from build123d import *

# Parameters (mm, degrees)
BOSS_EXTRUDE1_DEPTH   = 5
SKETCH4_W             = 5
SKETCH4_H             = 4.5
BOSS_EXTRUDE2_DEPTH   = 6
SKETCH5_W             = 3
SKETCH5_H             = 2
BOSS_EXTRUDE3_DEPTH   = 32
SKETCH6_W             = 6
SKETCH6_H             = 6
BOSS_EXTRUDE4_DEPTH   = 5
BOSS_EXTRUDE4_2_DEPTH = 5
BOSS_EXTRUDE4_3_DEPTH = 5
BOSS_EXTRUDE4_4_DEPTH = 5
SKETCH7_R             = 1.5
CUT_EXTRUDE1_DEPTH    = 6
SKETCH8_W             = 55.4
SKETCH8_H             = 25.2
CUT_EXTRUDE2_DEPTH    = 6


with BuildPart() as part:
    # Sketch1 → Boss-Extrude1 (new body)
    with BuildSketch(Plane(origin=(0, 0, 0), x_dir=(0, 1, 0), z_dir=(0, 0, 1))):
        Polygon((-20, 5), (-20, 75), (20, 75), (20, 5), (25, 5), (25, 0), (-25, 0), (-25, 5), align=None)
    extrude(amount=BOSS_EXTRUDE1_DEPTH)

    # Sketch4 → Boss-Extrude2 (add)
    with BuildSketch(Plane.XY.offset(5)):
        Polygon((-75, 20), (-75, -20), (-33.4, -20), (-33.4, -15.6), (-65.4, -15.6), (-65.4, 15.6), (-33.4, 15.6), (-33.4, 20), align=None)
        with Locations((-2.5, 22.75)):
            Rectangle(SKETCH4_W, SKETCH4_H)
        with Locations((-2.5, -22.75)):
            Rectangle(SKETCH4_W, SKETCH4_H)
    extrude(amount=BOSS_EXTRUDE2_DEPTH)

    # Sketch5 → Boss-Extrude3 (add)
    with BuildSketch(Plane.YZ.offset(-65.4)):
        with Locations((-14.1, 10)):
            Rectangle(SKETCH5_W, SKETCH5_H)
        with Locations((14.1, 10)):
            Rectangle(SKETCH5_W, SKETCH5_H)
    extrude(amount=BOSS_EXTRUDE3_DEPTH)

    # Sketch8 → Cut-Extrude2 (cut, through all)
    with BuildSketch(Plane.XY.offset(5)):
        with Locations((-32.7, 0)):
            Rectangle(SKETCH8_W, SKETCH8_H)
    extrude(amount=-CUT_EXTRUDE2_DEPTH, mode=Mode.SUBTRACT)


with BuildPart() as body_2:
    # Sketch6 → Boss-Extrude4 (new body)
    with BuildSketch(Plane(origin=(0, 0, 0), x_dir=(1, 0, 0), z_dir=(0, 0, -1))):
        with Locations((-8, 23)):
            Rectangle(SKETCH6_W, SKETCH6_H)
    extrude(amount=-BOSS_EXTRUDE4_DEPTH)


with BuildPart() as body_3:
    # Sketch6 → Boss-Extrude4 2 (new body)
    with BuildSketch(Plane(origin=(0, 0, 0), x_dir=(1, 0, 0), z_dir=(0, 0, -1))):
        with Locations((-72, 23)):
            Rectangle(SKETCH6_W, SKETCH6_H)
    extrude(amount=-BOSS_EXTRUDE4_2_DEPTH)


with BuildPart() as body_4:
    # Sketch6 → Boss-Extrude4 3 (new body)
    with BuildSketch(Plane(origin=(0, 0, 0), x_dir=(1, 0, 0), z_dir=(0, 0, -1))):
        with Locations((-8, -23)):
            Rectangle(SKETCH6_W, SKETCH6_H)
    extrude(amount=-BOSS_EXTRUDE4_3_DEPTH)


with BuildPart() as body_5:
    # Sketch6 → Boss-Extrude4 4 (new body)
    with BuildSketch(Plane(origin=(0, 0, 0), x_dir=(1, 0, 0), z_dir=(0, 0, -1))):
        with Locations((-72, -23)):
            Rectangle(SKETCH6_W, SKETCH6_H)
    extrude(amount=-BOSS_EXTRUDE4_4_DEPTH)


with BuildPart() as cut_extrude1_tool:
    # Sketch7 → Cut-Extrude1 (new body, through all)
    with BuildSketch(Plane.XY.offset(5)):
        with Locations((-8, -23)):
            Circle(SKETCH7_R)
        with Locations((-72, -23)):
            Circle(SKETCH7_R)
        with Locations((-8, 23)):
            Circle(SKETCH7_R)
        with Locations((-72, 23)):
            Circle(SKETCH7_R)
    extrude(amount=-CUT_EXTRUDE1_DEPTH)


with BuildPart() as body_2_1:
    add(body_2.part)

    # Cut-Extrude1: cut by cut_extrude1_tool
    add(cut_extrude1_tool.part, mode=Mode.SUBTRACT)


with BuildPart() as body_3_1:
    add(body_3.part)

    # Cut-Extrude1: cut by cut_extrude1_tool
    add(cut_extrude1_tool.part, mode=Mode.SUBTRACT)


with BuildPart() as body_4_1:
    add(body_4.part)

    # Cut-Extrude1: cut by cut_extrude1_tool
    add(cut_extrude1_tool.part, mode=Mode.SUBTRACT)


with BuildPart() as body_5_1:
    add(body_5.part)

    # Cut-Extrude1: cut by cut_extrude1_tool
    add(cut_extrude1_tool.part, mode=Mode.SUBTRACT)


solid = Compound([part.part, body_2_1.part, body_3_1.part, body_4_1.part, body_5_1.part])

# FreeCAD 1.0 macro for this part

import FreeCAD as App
import Part
import Sketcher

doc = App.newDocument("Part")
body = doc.addObject("PartDesign::Body", "Body")

sketch1 = body.newObject("Sketcher::SketchObject", "Sketch")
sketch1.AttachmentSupport = (doc.getObject("XY_Plane"), [""])
sketch1.MapMode = "FlatFace"
sketch1.addGeometry(Part.LineSegment(App.Vector(-75, -20, 0), App.Vector(-5, -20, 0)), False)
sketch1.addGeometry(Part.LineSegment(App.Vector(-5, -20, 0), App.Vector(-5, -25, 0)), False)
sketch1.addGeometry(Part.LineSegment(App.Vector(-5, -25, 0), App.Vector(0, -25, 0)), False)
sketch1.addGeometry(Part.LineSegment(App.Vector(0, -25, 0), App.Vector(0, 25, 0)), False)
sketch1.addGeometry(Part.LineSegment(App.Vector(0, 25, 0), App.Vector(-5, 25, 0)), False)
sketch1.addGeometry(Part.LineSegment(App.Vector(-5, 25, 0), App.Vector(-5, 20, 0)), False)
sketch1.addGeometry(Part.LineSegment(App.Vector(-5, 20, 0), App.Vector(-75, 20, 0)), False)
sketch1.addGeometry(Part.LineSegment(App.Vector(-75, 20, 0), App.Vector(-75, -20, 0)), False)
sketch1.addConstraint(Sketcher.Constraint("Coincident", 0, 2, 1, 1))
sketch1.addConstraint(Sketcher.Constraint("Coincident", 1, 2, 2, 1))
sketch1.addConstraint(Sketcher.Constraint("Coincident", 2, 2, 3, 1))
sketch1.addConstraint(Sketcher.Constraint("Coincident", 3, 2, 4, 1))
sketch1.addConstraint(Sketcher.Constraint("Coincident", 4, 2, 5, 1))
sketch1.addConstraint(Sketcher.Constraint("Coincident", 5, 2, 6, 1))
sketch1.addConstraint(Sketcher.Constraint("Coincident", 6, 2, 7, 1))
sketch1.addConstraint(Sketcher.Constraint("Coincident", 7, 2, 0, 1))
sketch1.addConstraint(Sketcher.Constraint("Horizontal", 0))
sketch1.addConstraint(Sketcher.Constraint("Vertical", 1))
sketch1.addConstraint(Sketcher.Constraint("Horizontal", 2))
sketch1.addConstraint(Sketcher.Constraint("Vertical", 3))
sketch1.addConstraint(Sketcher.Constraint("Horizontal", 4))
sketch1.addConstraint(Sketcher.Constraint("Vertical", 5))
sketch1.addConstraint(Sketcher.Constraint("Horizontal", 6))
sketch1.addConstraint(Sketcher.Constraint("Vertical", 7))
sketch1.addConstraint(Sketcher.Constraint("Symmetric", 2, 2, 3, 2, -1, 1))
sketch1.addConstraint(Sketcher.Constraint("Symmetric", 0, 2, 5, 2, -1))
sketch1.addConstraint(Sketcher.Constraint("Equal", 4, 1))
sketch1.addConstraint(Sketcher.Constraint("DistanceX", 0, 1, 0, 2, 70.0))
sketch1.addConstraint(Sketcher.Constraint("DistanceX", 2, 1, 2, 2, 5.0))
sketch1.addConstraint(Sketcher.Constraint("DistanceY", 3, 1, 3, 2, 50.0))
pad1 = body.newObject("PartDesign::Pad", "Pad")
pad1.Profile = sketch1
pad1.Length = 5

sketch2 = body.newObject("Sketcher::SketchObject", "Sketch001")
sketch2.AttachmentSupport = (doc.getObject("XY_Plane"), [""])
sketch2.MapMode = "FlatFace"
sketch2.AttachmentOffset = App.Placement(App.Vector(0, 0, 5), App.Rotation())
sketch2.addGeometry(Part.LineSegment(App.Vector(-75, 20, 0), App.Vector(-75, -20, 0)), False)
sketch2.addGeometry(Part.LineSegment(App.Vector(-75, -20, 0), App.Vector(-33.4, -20, 0)), False)
sketch2.addGeometry(Part.LineSegment(App.Vector(-33.4, -20, 0), App.Vector(-33.4, -15.6, 0)), False)
sketch2.addGeometry(Part.LineSegment(App.Vector(-33.4, -15.6, 0), App.Vector(-65.4, -15.6, 0)), False)
sketch2.addGeometry(Part.LineSegment(App.Vector(-65.4, -15.6, 0), App.Vector(-65.4, 15.6, 0)), False)
sketch2.addGeometry(Part.LineSegment(App.Vector(-65.4, 15.6, 0), App.Vector(-33.4, 15.6, 0)), False)
sketch2.addGeometry(Part.LineSegment(App.Vector(-33.4, 15.6, 0), App.Vector(-33.4, 20, 0)), False)
sketch2.addGeometry(Part.LineSegment(App.Vector(-33.4, 20, 0), App.Vector(-75, 20, 0)), False)
sketch2.addGeometry(Part.LineSegment(App.Vector(-5, 25, 0), App.Vector(-5, 20.5, 0)), False)
sketch2.addGeometry(Part.LineSegment(App.Vector(-5, 20.5, 0), App.Vector(0, 20.5, 0)), False)
sketch2.addGeometry(Part.LineSegment(App.Vector(0, 20.5, 0), App.Vector(0, 25, 0)), False)
sketch2.addGeometry(Part.LineSegment(App.Vector(0, 25, 0), App.Vector(-5, 25, 0)), False)
sketch2.addGeometry(Part.LineSegment(App.Vector(-5, -20.5, 0), App.Vector(-5, -25, 0)), False)
sketch2.addGeometry(Part.LineSegment(App.Vector(-5, -25, 0), App.Vector(0, -25, 0)), False)
sketch2.addGeometry(Part.LineSegment(App.Vector(0, -25, 0), App.Vector(0, -20.5, 0)), False)
sketch2.addGeometry(Part.LineSegment(App.Vector(0, -20.5, 0), App.Vector(-5, -20.5, 0)), False)
sketch2.addConstraint(Sketcher.Constraint("Coincident", 0, 2, 1, 1))
sketch2.addConstraint(Sketcher.Constraint("Coincident", 1, 2, 2, 1))
sketch2.addConstraint(Sketcher.Constraint("Coincident", 2, 2, 3, 1))
sketch2.addConstraint(Sketcher.Constraint("Coincident", 3, 2, 4, 1))
sketch2.addConstraint(Sketcher.Constraint("Coincident", 4, 2, 5, 1))
sketch2.addConstraint(Sketcher.Constraint("Coincident", 5, 2, 6, 1))
sketch2.addConstraint(Sketcher.Constraint("Coincident", 6, 2, 7, 1))
sketch2.addConstraint(Sketcher.Constraint("Coincident", 7, 2, 0, 1))
sketch2.addConstraint(Sketcher.Constraint("Coincident", 8, 2, 9, 1))
sketch2.addConstraint(Sketcher.Constraint("Coincident", 9, 2, 10, 1))
sketch2.addConstraint(Sketcher.Constraint("Coincident", 10, 2, 11, 1))
sketch2.addConstraint(Sketcher.Constraint("Coincident", 11, 2, 8, 1))
sketch2.addConstraint(Sketcher.Constraint("Coincident", 12, 2, 13, 1))
sketch2.addConstraint(Sketcher.Constraint("Coincident", 13, 2, 14, 1))
sketch2.addConstraint(Sketcher.Constraint("Coincident", 14, 2, 15, 1))
sketch2.addConstraint(Sketcher.Constraint("Coincident", 15, 2, 12, 1))
sketch2.addConstraint(Sketcher.Constraint("Vertical", 0))
sketch2.addConstraint(Sketcher.Constraint("Horizontal", 1))
sketch2.addConstraint(Sketcher.Constraint("Vertical", 2))
sketch2.addConstraint(Sketcher.Constraint("Horizontal", 3))
sketch2.addConstraint(Sketcher.Constraint("Vertical", 4))
sketch2.addConstraint(Sketcher.Constraint("Horizontal", 5))
sketch2.addConstraint(Sketcher.Constraint("Vertical", 6))
sketch2.addConstraint(Sketcher.Constraint("Horizontal", 7))
sketch2.addConstraint(Sketcher.Constraint("Vertical", 8))
sketch2.addConstraint(Sketcher.Constraint("Horizontal", 9))
sketch2.addConstraint(Sketcher.Constraint("Vertical", 10))
sketch2.addConstraint(Sketcher.Constraint("Horizontal", 11))
sketch2.addConstraint(Sketcher.Constraint("Vertical", 12))
sketch2.addConstraint(Sketcher.Constraint("Horizontal", 13))
sketch2.addConstraint(Sketcher.Constraint("Vertical", 14))
sketch2.addConstraint(Sketcher.Constraint("Horizontal", 15))
sketch2.addConstraint(Sketcher.Constraint("Symmetric", 10, 2, 13, 2, -1, 1))
sketch2.addConstraint(Sketcher.Constraint("Symmetric", 2, 2, 5, 2, -1))
sketch2.addConstraint(Sketcher.Constraint("Symmetric", 9, 2, 14, 2, -1))
sketch2.addConstraint(Sketcher.Constraint("Vertical", 11, 2, 12, 2))
sketch2.addConstraint(Sketcher.Constraint("Equal", 2, 6))
sketch2.addConstraint(Sketcher.Constraint("DistanceX", 3, 2, 3, 1, 32.0))
sketch2.addConstraint(Sketcher.Constraint("DistanceX", 9, 1, 9, 2, 5.0))
sketch2.addConstraint(Sketcher.Constraint("DistanceY", 0, 2, 0, 1, 40.0))
sketch2.addConstraint(Sketcher.Constraint("DistanceX", 1, 1, 1, 2, 41.6))
sketch2.addConstraint(Sketcher.Constraint("DistanceY", 2, 1, 2, 2, 4.4))
sketch2.addConstraint(Sketcher.Constraint("DistanceY", 8, 2, 8, 1, 4.5))
sketch2.addConstraint(Sketcher.Constraint("DistanceX", 0, 2, -1, 1, 75.0))
sketch2.addConstraint(Sketcher.Constraint("DistanceY", -1, 1, 10, 2, 25.0))
pad2 = body.newObject("PartDesign::Pad", "Pad001")
pad2.Profile = sketch2
pad2.Length = 6

sketch3 = body.newObject("Sketcher::SketchObject", "Sketch002")
sketch3.AttachmentSupport = (doc.getObject("YZ_Plane"), [""])
sketch3.MapMode = "FlatFace"
sketch3.AttachmentOffset = App.Placement(App.Vector(0, 0, -65.4), App.Rotation())
sketch3.addGeometry(Part.LineSegment(App.Vector(-15.6, 11, 0), App.Vector(-15.6, 9, 0)), False)
sketch3.addGeometry(Part.LineSegment(App.Vector(-15.6, 9, 0), App.Vector(-12.6, 9, 0)), False)
sketch3.addGeometry(Part.LineSegment(App.Vector(-12.6, 9, 0), App.Vector(-12.6, 11, 0)), False)
sketch3.addGeometry(Part.LineSegment(App.Vector(-12.6, 11, 0), App.Vector(-15.6, 11, 0)), False)
sketch3.addGeometry(Part.LineSegment(App.Vector(12.6, 11, 0), App.Vector(12.6, 9, 0)), False)
sketch3.addGeometry(Part.LineSegment(App.Vector(12.6, 9, 0), App.Vector(15.6, 9, 0)), False)
sketch3.addGeometry(Part.LineSegment(App.Vector(15.6, 9, 0), App.Vector(15.6, 11, 0)), False)
sketch3.addGeometry(Part.LineSegment(App.Vector(15.6, 11, 0), App.Vector(12.6, 11, 0)), False)
sketch3.addConstraint(Sketcher.Constraint("Coincident", 0, 2, 1, 1))
sketch3.addConstraint(Sketcher.Constraint("Coincident", 1, 2, 2, 1))
sketch3.addConstraint(Sketcher.Constraint("Coincident", 2, 2, 3, 1))
sketch3.addConstraint(Sketcher.Constraint("Coincident", 3, 2, 0, 1))
sketch3.addConstraint(Sketcher.Constraint("Coincident", 4, 2, 5, 1))
sketch3.addConstraint(Sketcher.Constraint("Coincident", 5, 2, 6, 1))
sketch3.addConstraint(Sketcher.Constraint("Coincident", 6, 2, 7, 1))
sketch3.addConstraint(Sketcher.Constraint("Coincident", 7, 2, 4, 1))
sketch3.addConstraint(Sketcher.Constraint("Vertical", 0))
sketch3.addConstraint(Sketcher.Constraint("Horizontal", 1))
sketch3.addConstraint(Sketcher.Constraint("Vertical", 2))
sketch3.addConstraint(Sketcher.Constraint("Horizontal", 3))
sketch3.addConstraint(Sketcher.Constraint("Vertical", 4))
sketch3.addConstraint(Sketcher.Constraint("Horizontal", 5))
sketch3.addConstraint(Sketcher.Constraint("Vertical", 6))
sketch3.addConstraint(Sketcher.Constraint("Horizontal", 7))
sketch3.addConstraint(Sketcher.Constraint("Symmetric", 1, 2, 4, 2, -2))
sketch3.addConstraint(Sketcher.Constraint("Symmetric", 3, 2, 6, 2, -2))
sketch3.addConstraint(Sketcher.Constraint("DistanceX", 1, 1, 1, 2, 3.0))
sketch3.addConstraint(Sketcher.Constraint("DistanceY", 0, 2, 0, 1, 2.0))
sketch3.addConstraint(Sketcher.Constraint("DistanceY", -1, 1, 0, 2, 9.0))
sketch3.addConstraint(Sketcher.Constraint("DistanceX", 0, 2, -1, 1, 15.6))
pad3 = body.newObject("PartDesign::Pad", "Pad002")
pad3.Profile = sketch3
pad3.Length = 32

sketch4 = body.newObject("Sketcher::SketchObject", "Sketch003")
sketch4.AttachmentSupport = (doc.getObject("XY_Plane"), [""])
sketch4.MapMode = "FlatFace"
sketch4.AttachmentOffset = App.Placement(App.Vector(0, 0, 5), App.Rotation())
sketch4.addGeometry(Part.LineSegment(App.Vector(-60, 13, 0), App.Vector(-60, -13, 0)), False)
sketch4.addGeometry(Part.LineSegment(App.Vector(-60, -13, 0), App.Vector(-5, -13, 0)), False)
sketch4.addGeometry(Part.LineSegment(App.Vector(-5, -13, 0), App.Vector(-5, 13, 0)), False)
sketch4.addGeometry(Part.LineSegment(App.Vector(-5, 13, 0), App.Vector(-60, 13, 0)), False)
sketch4.addConstraint(Sketcher.Constraint("Coincident", 0, 2, 1, 1))
sketch4.addConstraint(Sketcher.Constraint("Coincident", 1, 2, 2, 1))
sketch4.addConstraint(Sketcher.Constraint("Coincident", 2, 2, 3, 1))
sketch4.addConstraint(Sketcher.Constraint("Coincident", 3, 2, 0, 1))
sketch4.addConstraint(Sketcher.Constraint("Vertical", 0))
sketch4.addConstraint(Sketcher.Constraint("Horizontal", 1))
sketch4.addConstraint(Sketcher.Constraint("Vertical", 2))
sketch4.addConstraint(Sketcher.Constraint("Horizontal", 3))
sketch4.addConstraint(Sketcher.Constraint("DistanceX", 1, 1, 1, 2, 55.4))
sketch4.addConstraint(Sketcher.Constraint("DistanceY", 0, 2, 0, 1, 25.2))
sketch4.addConstraint(Sketcher.Constraint("DistanceX", 1, 2, -1, 1, 5.0))
sketch4.addConstraint(Sketcher.Constraint("DistanceY", 0, 2, -1, 1, 12.6))
pocket1 = body.newObject("PartDesign::Pocket", "Pocket")
pocket1.Profile = sketch4
pocket1.Type = "ThroughAll"
body2 = doc.addObject("PartDesign::Body", "Body001")

sketch5 = body2.newObject("Sketcher::SketchObject", "Sketch004")
sketch5.AttachmentSupport = (doc.getObject("XY_Plane001"), [""])
sketch5.MapMode = "FlatFace"
sketch5.addGeometry(Part.LineSegment(App.Vector(-11, -26, 0), App.Vector(-11, -20, 0)), False)
sketch5.addGeometry(Part.LineSegment(App.Vector(-11, -20, 0), App.Vector(-5, -20, 0)), False)
sketch5.addGeometry(Part.LineSegment(App.Vector(-5, -20, 0), App.Vector(-5, -26, 0)), False)
sketch5.addGeometry(Part.LineSegment(App.Vector(-5, -26, 0), App.Vector(-11, -26, 0)), False)
sketch5.addConstraint(Sketcher.Constraint("Coincident", 0, 2, 1, 1))
sketch5.addConstraint(Sketcher.Constraint("Coincident", 1, 2, 2, 1))
sketch5.addConstraint(Sketcher.Constraint("Coincident", 2, 2, 3, 1))
sketch5.addConstraint(Sketcher.Constraint("Coincident", 3, 2, 0, 1))
sketch5.addConstraint(Sketcher.Constraint("Vertical", 0))
sketch5.addConstraint(Sketcher.Constraint("Horizontal", 1))
sketch5.addConstraint(Sketcher.Constraint("Vertical", 2))
sketch5.addConstraint(Sketcher.Constraint("Horizontal", 3))
sketch5.addConstraint(Sketcher.Constraint("Equal", 3, 0))
sketch5.addConstraint(Sketcher.Constraint("DistanceX", 1, 1, 1, 2, 6.0))
sketch5.addConstraint(Sketcher.Constraint("DistanceX", 0, 2, -1, 1, 11.0))
sketch5.addConstraint(Sketcher.Constraint("DistanceY", 0, 2, -1, 1, 20.0))
pad4 = body2.newObject("PartDesign::Pad", "Pad003")
pad4.Profile = sketch5
pad4.Length = 5
body3 = doc.addObject("PartDesign::Body", "Body002")

sketch6 = body3.newObject("Sketcher::SketchObject", "Sketch005")
sketch6.AttachmentSupport = (doc.getObject("XY_Plane002"), [""])
sketch6.MapMode = "FlatFace"
sketch6.addGeometry(Part.LineSegment(App.Vector(-75, -26, 0), App.Vector(-75, -20, 0)), False)
sketch6.addGeometry(Part.LineSegment(App.Vector(-75, -20, 0), App.Vector(-69, -20, 0)), False)
sketch6.addGeometry(Part.LineSegment(App.Vector(-69, -20, 0), App.Vector(-69, -26, 0)), False)
sketch6.addGeometry(Part.LineSegment(App.Vector(-69, -26, 0), App.Vector(-75, -26, 0)), False)
sketch6.addConstraint(Sketcher.Constraint("Coincident", 0, 2, 1, 1))
sketch6.addConstraint(Sketcher.Constraint("Coincident", 1, 2, 2, 1))
sketch6.addConstraint(Sketcher.Constraint("Coincident", 2, 2, 3, 1))
sketch6.addConstraint(Sketcher.Constraint("Coincident", 3, 2, 0, 1))
sketch6.addConstraint(Sketcher.Constraint("Vertical", 0))
sketch6.addConstraint(Sketcher.Constraint("Horizontal", 1))
sketch6.addConstraint(Sketcher.Constraint("Vertical", 2))
sketch6.addConstraint(Sketcher.Constraint("Horizontal", 3))
sketch6.addConstraint(Sketcher.Constraint("Equal", 3, 0))
sketch6.addConstraint(Sketcher.Constraint("DistanceX", 1, 1, 1, 2, 6.0))
sketch6.addConstraint(Sketcher.Constraint("DistanceX", 0, 2, -1, 1, 75.0))
sketch6.addConstraint(Sketcher.Constraint("DistanceY", 0, 2, -1, 1, 20.0))
pad5 = body3.newObject("PartDesign::Pad", "Pad004")
pad5.Profile = sketch6
pad5.Length = 5
body4 = doc.addObject("PartDesign::Body", "Body003")

sketch7 = body4.newObject("Sketcher::SketchObject", "Sketch006")
sketch7.AttachmentSupport = (doc.getObject("XY_Plane003"), [""])
sketch7.MapMode = "FlatFace"
sketch7.addGeometry(Part.LineSegment(App.Vector(-11, 20, 0), App.Vector(-11, 26, 0)), False)
sketch7.addGeometry(Part.LineSegment(App.Vector(-11, 26, 0), App.Vector(-5, 26, 0)), False)
sketch7.addGeometry(Part.LineSegment(App.Vector(-5, 26, 0), App.Vector(-5, 20, 0)), False)
sketch7.addGeometry(Part.LineSegment(App.Vector(-5, 20, 0), App.Vector(-11, 20, 0)), False)
sketch7.addConstraint(Sketcher.Constraint("Coincident", 0, 2, 1, 1))
sketch7.addConstraint(Sketcher.Constraint("Coincident", 1, 2, 2, 1))
sketch7.addConstraint(Sketcher.Constraint("Coincident", 2, 2, 3, 1))
sketch7.addConstraint(Sketcher.Constraint("Coincident", 3, 2, 0, 1))
sketch7.addConstraint(Sketcher.Constraint("Vertical", 0))
sketch7.addConstraint(Sketcher.Constraint("Horizontal", 1))
sketch7.addConstraint(Sketcher.Constraint("Vertical", 2))
sketch7.addConstraint(Sketcher.Constraint("Horizontal", 3))
sketch7.addConstraint(Sketcher.Constraint("Equal", 3, 0))
sketch7.addConstraint(Sketcher.Constraint("DistanceX", 1, 1, 1, 2, 6.0))
sketch7.addConstraint(Sketcher.Constraint("DistanceX", 0, 2, -1, 1, 11.0))
sketch7.addConstraint(Sketcher.Constraint("DistanceY", -1, 1, 0, 2, 26.0))
pad6 = body4.newObject("PartDesign::Pad", "Pad005")
pad6.Profile = sketch7
pad6.Length = 5
body5 = doc.addObject("PartDesign::Body", "Body004")

sketch8 = body5.newObject("Sketcher::SketchObject", "Sketch007")
sketch8.AttachmentSupport = (doc.getObject("XY_Plane004"), [""])
sketch8.MapMode = "FlatFace"
sketch8.addGeometry(Part.LineSegment(App.Vector(-75, 20, 0), App.Vector(-75, 26, 0)), False)
sketch8.addGeometry(Part.LineSegment(App.Vector(-75, 26, 0), App.Vector(-69, 26, 0)), False)
sketch8.addGeometry(Part.LineSegment(App.Vector(-69, 26, 0), App.Vector(-69, 20, 0)), False)
sketch8.addGeometry(Part.LineSegment(App.Vector(-69, 20, 0), App.Vector(-75, 20, 0)), False)
sketch8.addConstraint(Sketcher.Constraint("Coincident", 0, 2, 1, 1))
sketch8.addConstraint(Sketcher.Constraint("Coincident", 1, 2, 2, 1))
sketch8.addConstraint(Sketcher.Constraint("Coincident", 2, 2, 3, 1))
sketch8.addConstraint(Sketcher.Constraint("Coincident", 3, 2, 0, 1))
sketch8.addConstraint(Sketcher.Constraint("Vertical", 0))
sketch8.addConstraint(Sketcher.Constraint("Horizontal", 1))
sketch8.addConstraint(Sketcher.Constraint("Vertical", 2))
sketch8.addConstraint(Sketcher.Constraint("Horizontal", 3))
sketch8.addConstraint(Sketcher.Constraint("Equal", 3, 0))
sketch8.addConstraint(Sketcher.Constraint("DistanceX", 1, 1, 1, 2, 6.0))
sketch8.addConstraint(Sketcher.Constraint("DistanceX", 0, 2, -1, 1, 75.0))
sketch8.addConstraint(Sketcher.Constraint("DistanceY", -1, 1, 0, 2, 26.0))
pad7 = body5.newObject("PartDesign::Pad", "Pad006")
pad7.Profile = sketch8
pad7.Length = 5
body6 = doc.addObject("PartDesign::Body", "Body005")
body6.AllowCompound = True

sketch9 = body6.newObject("Sketcher::SketchObject", "Sketch008")
sketch9.AttachmentSupport = (doc.getObject("XY_Plane005"), [""])
sketch9.MapMode = "FlatFace"
sketch9.AttachmentOffset = App.Placement(App.Vector(0, 0, 5), App.Rotation())
sketch9.addGeometry(Part.Circle(App.Vector(-8, -23, 0), App.Vector(0, 0, 1), 1.5), False)
sketch9.addGeometry(Part.Circle(App.Vector(-72, -23, 0), App.Vector(0, 0, 1), 1.5), False)
sketch9.addGeometry(Part.Circle(App.Vector(-8, 23, 0), App.Vector(0, 0, 1), 1.5), False)
sketch9.addGeometry(Part.Circle(App.Vector(-72, 23, 0), App.Vector(0, 0, 1), 1.5), False)
sketch9.addConstraint(Sketcher.Constraint("Equal", 0, 1))
sketch9.addConstraint(Sketcher.Constraint("Equal", 1, 2))
sketch9.addConstraint(Sketcher.Constraint("Equal", 2, 3))
sketch9.addConstraint(Sketcher.Constraint("Symmetric", 0, 3, 2, 3, -1))
sketch9.addConstraint(Sketcher.Constraint("Symmetric", 1, 3, 3, 3, -1))
sketch9.addConstraint(Sketcher.Constraint("Horizontal", 0, 3, 1, 3))
sketch9.addConstraint(Sketcher.Constraint("Diameter", 0, 3.0))
sketch9.addConstraint(Sketcher.Constraint("DistanceX", 0, 3, -1, 1, 8.0))
sketch9.addConstraint(Sketcher.Constraint("DistanceY", 0, 3, -1, 1, 23.0))
sketch9.addConstraint(Sketcher.Constraint("DistanceX", 1, 3, -1, 1, 72.0))
pad8 = body6.newObject("PartDesign::Pad", "Pad007")
pad8.Profile = sketch9
pad8.Length = 6
pad8.Reversed = True
doc.recompute()

body7 = doc.addObject("PartDesign::Body", "Body006")
body7.BaseFeature = body6
boolean = body2.newObject("PartDesign::Boolean", "Boolean")
boolean.Type = "Cut"
boolean.addObjects([body7])
doc.recompute()

body8 = doc.addObject("PartDesign::Body", "Body007")
body8.BaseFeature = body6
boolean2 = body3.newObject("PartDesign::Boolean", "Boolean001")
boolean2.Type = "Cut"
boolean2.addObjects([body8])
doc.recompute()

body9 = doc.addObject("PartDesign::Body", "Body008")
body9.BaseFeature = body6
boolean3 = body4.newObject("PartDesign::Boolean", "Boolean002")
boolean3.Type = "Cut"
boolean3.addObjects([body9])
doc.recompute()

boolean4 = body5.newObject("PartDesign::Boolean", "Boolean003")
boolean4.Type = "Cut"
boolean4.addObjects([body6])

doc.recompute()
